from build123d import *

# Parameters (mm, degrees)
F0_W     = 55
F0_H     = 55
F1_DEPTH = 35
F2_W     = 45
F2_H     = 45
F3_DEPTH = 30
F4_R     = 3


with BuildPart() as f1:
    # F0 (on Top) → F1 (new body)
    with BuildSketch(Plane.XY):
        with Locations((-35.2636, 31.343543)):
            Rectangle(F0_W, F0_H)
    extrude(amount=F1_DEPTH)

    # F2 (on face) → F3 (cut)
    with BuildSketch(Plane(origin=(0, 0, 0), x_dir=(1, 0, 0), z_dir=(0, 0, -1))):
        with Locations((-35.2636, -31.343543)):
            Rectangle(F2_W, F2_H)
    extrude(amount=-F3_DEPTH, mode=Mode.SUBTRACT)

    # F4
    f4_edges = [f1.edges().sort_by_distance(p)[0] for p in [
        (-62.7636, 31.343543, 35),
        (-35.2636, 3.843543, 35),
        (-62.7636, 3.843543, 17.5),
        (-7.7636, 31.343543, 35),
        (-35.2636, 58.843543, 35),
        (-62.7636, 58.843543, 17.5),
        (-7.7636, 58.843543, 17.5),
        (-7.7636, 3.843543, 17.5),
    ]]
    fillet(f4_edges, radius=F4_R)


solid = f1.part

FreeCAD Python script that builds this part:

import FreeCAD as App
import Part
import Sketcher
from FreeCAD import Vector
Q = App.Units.Quantity


def edges_at(feature, points):
    """Names of the edges that pass closest to the given points."""
    edges = feature.Shape.Edges
    near = lambda p: min(range(len(edges)), key=lambda i: edges[i].distToShape(Part.Vertex(*p))[0])
    return sorted({f"Edge{near(p) + 1}" for p in points})


def add_polygon(sketch, points):
    """Adds a closed chain of lines whose ends are joined by coincident constraints."""
    first, n = sketch.GeometryCount, len(points)
    for a, b in zip(points, points[1:] + points[:1]):
        sketch.addGeometry(Part.LineSegment(App.Vector(*a, 0), App.Vector(*b, 0)), False)
    for i in range(n):
        sketch.addConstraint(Sketcher.Constraint("Coincident", first + i, 2, first + (i + 1) % n, 1))

doc = App.newDocument("Part")
body = doc.addObject("PartDesign::Body", "Body")

sketch1 = body.newObject("Sketcher::SketchObject", "Sketch")
sketch1.AttachmentSupport = (doc.getObject("XY_Plane"), [""])
sketch1.MapMode = "FlatFace"
add_polygon(sketch1, [(-62.7636, 58.843543), (-62.7636, 3.843543), (-7.7636, 3.843543), (-7.7636, 58.843543)])
sketch1.addConstraint([
    Sketcher.Constraint("Vertical", 0),
    Sketcher.Constraint("Horizontal", 1),
    Sketcher.Constraint("Vertical", 2),
    Sketcher.Constraint("Horizontal", 3),
    Sketcher.Constraint("Equal", 3, 0),
    Sketcher.Constraint("DistanceX", 1, 1, 1, 2, Q("55 mm")),
    Sketcher.Constraint("DistanceX", 0, 2, -1, 1, Q("62.7636 mm")),
    Sketcher.Constraint("DistanceY", -1, 1, 0, 2, Q("3.843543 mm")),
])
pad1 = body.newObject("PartDesign::Pad", "Pad")
pad1.Profile = sketch1
pad1.Length = 35

sketch2 = body.newObject("Sketcher::SketchObject", "Sketch001")
sketch2.AttachmentSupport = (doc.getObject("XY_Plane"), [""])
sketch2.MapMode = "FlatFace"
add_polygon(sketch2, [(-57.7636, 8.843543), (-57.7636, 53.843543), (-12.7636, 53.843543), (-12.7636, 8.843543)])
sketch2.addConstraint([
    Sketcher.Constraint("Vertical", 0),
    Sketcher.Constraint("Horizontal", 1),
    Sketcher.Constraint("Vertical", 2),
    Sketcher.Constraint("Horizontal", 3),
    Sketcher.Constraint("Equal", 3, 0),
    Sketcher.Constraint("DistanceX", 1, 1, 1, 2, Q("45 mm")),
    Sketcher.Constraint("DistanceX", 0, 2, -1, 1, Q("57.7636 mm")),
    Sketcher.Constraint("DistanceY", -1, 1, 0, 2, Q("53.843543 mm")),
])
pocket1 = body.newObject("PartDesign::Pocket", "Pocket")
pocket1.Profile = sketch2
pocket1.Length = 30
pocket1.Reversed = True
doc.recompute()

fillet = body.newObject("PartDesign::Fillet", "Fillet")
fillet.Base = (pocket1, edges_at(pocket1, [
    (-62.764, 31.344, 35),
    (-35.264, 3.844, 35),
    (-62.764, 3.844, 17.5),
    (-7.764, 31.344, 35),
    (-35.264, 58.844, 35),
    (-62.764, 58.844, 17.5),
    (-7.764, 58.844, 17.5),
    (-7.764, 3.844, 17.5),
]))
fillet.Radius = 3

doc.recompute()
